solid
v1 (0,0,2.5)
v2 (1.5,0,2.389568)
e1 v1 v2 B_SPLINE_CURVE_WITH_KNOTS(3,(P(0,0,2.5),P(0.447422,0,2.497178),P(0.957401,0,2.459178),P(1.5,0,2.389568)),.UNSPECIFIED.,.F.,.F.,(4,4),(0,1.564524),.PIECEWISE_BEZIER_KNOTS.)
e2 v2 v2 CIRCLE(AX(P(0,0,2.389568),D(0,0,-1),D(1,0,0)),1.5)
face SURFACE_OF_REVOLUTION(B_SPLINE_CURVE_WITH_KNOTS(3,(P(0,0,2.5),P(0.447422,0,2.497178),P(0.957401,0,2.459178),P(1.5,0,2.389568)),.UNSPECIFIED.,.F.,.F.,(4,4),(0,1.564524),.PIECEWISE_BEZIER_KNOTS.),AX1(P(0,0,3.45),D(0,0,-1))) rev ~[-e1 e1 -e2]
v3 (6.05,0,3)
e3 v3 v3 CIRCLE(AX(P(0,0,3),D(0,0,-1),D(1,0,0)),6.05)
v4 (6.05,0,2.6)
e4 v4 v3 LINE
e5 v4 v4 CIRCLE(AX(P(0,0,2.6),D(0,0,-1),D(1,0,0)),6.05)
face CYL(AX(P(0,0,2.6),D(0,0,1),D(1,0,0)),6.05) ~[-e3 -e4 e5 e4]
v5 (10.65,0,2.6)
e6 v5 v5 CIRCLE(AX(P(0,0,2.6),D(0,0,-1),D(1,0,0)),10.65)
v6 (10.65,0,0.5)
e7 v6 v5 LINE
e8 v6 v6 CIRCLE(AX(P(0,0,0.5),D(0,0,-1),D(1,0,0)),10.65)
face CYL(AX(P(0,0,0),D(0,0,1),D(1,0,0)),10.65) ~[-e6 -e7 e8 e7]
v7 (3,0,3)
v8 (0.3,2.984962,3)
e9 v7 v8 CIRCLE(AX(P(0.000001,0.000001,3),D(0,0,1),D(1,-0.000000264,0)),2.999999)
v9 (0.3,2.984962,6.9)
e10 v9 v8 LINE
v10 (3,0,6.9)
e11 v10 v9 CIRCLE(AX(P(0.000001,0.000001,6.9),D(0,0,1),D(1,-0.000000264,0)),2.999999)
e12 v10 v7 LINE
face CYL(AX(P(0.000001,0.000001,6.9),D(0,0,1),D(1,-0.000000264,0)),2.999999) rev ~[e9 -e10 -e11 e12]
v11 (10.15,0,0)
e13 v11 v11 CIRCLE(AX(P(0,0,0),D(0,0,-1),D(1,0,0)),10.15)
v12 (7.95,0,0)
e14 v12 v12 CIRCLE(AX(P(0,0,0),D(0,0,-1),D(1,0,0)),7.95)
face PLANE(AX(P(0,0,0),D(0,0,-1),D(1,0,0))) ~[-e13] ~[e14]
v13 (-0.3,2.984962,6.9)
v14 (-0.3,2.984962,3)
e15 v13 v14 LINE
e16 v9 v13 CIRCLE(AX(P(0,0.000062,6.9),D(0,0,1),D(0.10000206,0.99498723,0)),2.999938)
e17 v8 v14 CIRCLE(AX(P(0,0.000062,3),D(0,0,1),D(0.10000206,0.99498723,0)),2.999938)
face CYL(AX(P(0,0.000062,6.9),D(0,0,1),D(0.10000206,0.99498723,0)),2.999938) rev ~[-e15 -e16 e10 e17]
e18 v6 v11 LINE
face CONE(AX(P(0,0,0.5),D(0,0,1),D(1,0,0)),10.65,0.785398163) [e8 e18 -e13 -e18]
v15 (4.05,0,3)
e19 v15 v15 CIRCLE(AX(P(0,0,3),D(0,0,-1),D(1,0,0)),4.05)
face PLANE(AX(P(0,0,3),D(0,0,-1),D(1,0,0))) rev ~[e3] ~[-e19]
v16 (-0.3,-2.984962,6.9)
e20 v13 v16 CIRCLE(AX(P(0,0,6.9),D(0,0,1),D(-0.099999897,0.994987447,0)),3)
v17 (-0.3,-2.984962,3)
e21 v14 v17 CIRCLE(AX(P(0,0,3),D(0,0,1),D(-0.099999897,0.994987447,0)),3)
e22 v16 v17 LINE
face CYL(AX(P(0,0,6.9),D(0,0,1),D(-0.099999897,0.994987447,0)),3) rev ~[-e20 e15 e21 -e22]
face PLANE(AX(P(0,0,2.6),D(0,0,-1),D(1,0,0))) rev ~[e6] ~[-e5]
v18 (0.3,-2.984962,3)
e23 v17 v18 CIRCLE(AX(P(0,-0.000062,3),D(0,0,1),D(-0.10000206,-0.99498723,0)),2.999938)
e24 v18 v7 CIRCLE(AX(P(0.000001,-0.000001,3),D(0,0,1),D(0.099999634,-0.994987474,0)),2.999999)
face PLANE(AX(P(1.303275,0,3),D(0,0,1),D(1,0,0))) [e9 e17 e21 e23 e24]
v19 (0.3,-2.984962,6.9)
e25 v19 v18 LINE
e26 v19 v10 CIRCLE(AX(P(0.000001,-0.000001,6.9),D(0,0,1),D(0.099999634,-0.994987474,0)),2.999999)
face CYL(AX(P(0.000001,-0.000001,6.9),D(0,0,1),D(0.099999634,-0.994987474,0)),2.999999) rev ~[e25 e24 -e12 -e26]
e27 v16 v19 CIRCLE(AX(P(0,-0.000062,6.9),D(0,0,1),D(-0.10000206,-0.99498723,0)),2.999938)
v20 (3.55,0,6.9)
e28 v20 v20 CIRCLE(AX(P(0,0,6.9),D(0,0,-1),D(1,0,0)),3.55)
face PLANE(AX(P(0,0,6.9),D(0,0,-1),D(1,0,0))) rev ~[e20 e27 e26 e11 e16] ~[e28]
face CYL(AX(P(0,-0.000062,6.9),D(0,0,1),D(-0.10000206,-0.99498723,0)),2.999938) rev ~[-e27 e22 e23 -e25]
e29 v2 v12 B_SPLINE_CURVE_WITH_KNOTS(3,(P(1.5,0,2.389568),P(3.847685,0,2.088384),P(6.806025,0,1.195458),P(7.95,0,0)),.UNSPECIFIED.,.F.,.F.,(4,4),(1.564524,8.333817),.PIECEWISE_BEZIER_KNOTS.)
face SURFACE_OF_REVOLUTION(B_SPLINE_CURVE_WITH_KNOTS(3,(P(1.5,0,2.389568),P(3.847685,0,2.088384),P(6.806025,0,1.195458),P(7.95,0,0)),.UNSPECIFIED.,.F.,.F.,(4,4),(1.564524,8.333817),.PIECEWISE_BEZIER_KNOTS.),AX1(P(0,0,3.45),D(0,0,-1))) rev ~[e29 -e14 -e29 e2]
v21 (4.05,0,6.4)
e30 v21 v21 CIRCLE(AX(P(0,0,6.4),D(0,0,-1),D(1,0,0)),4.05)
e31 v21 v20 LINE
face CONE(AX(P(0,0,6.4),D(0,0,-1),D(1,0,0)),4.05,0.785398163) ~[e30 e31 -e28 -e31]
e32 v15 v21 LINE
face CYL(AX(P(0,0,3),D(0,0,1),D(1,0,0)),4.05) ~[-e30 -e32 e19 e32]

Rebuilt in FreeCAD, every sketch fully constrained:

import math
import FreeCAD as App
import Part
import Sketcher

V = App.Vector


def edges_at(feature, points):
    """Names of the edges that pass closest to the given points."""
    edges = feature.Shape.Edges
    near = lambda p: min(range(len(edges)), key=lambda i: edges[i].distToShape(Part.Vertex(*p))[0])
    return sorted({f"Edge{near(p) + 1}" for p in points})

doc = App.newDocument("Part")
body = doc.addObject("PartDesign::Body", "Body")

# Sketch on XZ plane
sketch1 = body.newObject("Sketcher::SketchObject", "Sketch")
sketch1.AttachmentSupport = (doc.getObject("XZ_Plane"), [""])
sketch1.MapMode = "FlatFace"
sketch1.addGeometry([
    Part.BSplineCurve([V(1.5, 2.389568, 0), V(3.847685, 2.088384, 0), V(6.806025, 1.195458, 0), V(7.95, 0, 0)], [4, 4], [1.564524, 8.333817], False, 3, [1, 1, 1, 1], False),  # 0
    Part.LineSegment(V(7.95, 0, 0), V(10.65, 0, 0)),  # 1
    Part.LineSegment(V(10.65, 0, 0), V(10.65, 2.6, 0)),  # 2
    Part.LineSegment(V(10.65, 2.6, 0), V(6.05, 2.6, 0)),  # 3
    Part.LineSegment(V(6.05, 2.6, 0), V(6.05, 3, 0)),  # 4
    Part.LineSegment(V(6.05, 3, 0), V(4.05, 3, 0)),  # 5
    Part.LineSegment(V(4.05, 3, 0), V(4.05, 6.9, 0)),  # 6
    Part.LineSegment(V(4.05, 6.9, 0), V(0, 6.9, 0)),  # 7
    Part.LineSegment(V(0, 6.9, 0), V(0, 2.5, 0)),  # 8
    Part.BSplineCurve([V(0, 2.5, 0), V(0.447422, 2.497178, 0), V(0.957401, 2.459178, 0), V(1.5, 2.389568, 0)], [4, 4], [0, 1.564524], False, 3, [1, 1, 1, 1], False),  # 9
], False)
sketch1.addConstraint([
    Sketcher.Constraint("Block", 0),
    Sketcher.Constraint("Block", 9),
    Sketcher.Constraint("Coincident", 0, 2, 1, 1),
    Sketcher.Constraint("Coincident", 1, 2, 2, 1),
    Sketcher.Constraint("Coincident", 2, 2, 3, 1),
    Sketcher.Constraint("Coincident", 3, 2, 4, 1),
    Sketcher.Constraint("Coincident", 4, 2, 5, 1),
    Sketcher.Constraint("Coincident", 5, 2, 6, 1),
    Sketcher.Constraint("Coincident", 6, 2, 7, 1),
    Sketcher.Constraint("Coincident", 7, 2, 8, 1),
    Sketcher.Constraint("Coincident", 8, 2, 9, 1),
    Sketcher.Constraint("Horizontal", 1),
    Sketcher.Constraint("Vertical", 2),
    Sketcher.Constraint("Horizontal", 3),
    Sketcher.Constraint("Vertical", 4),
    Sketcher.Constraint("Horizontal", 5),
    Sketcher.Constraint("Vertical", 6),
    Sketcher.Constraint("Horizontal", 7),
    Sketcher.Constraint("Vertical", 8),
    Sketcher.Constraint("DistanceX", 5, 2, 5, 1, 2.0),
    Sketcher.Constraint("DistanceX", 1, 1, 1, 2, 2.7),
    Sketcher.Constraint("DistanceX", 3, 2, 3, 1, 4.6),
    Sketcher.Constraint("DistanceY", 2, 1, 2, 2, 2.6),
    Sketcher.Constraint("DistanceY", 4, 1, 4, 2, 0.4),
    Sketcher.Constraint("DistanceY", 6, 1, 6, 2, 3.9),
])
revolution = body.newObject("PartDesign::Revolution", "Revolution")
revolution.Profile = sketch1
revolution.ReferenceAxis = (sketch1, ["V_Axis"])
revolution.Angle = 360
doc.recompute()

chamfer = body.newObject("PartDesign::Chamfer", "Chamfer")
chamfer.Base = (revolution, edges_at(revolution, [(-4.05, 0, 6.9)]))
chamfer.Size = 0.5
doc.recompute()

chamfer2 = body.newObject("PartDesign::Chamfer", "Chamfer001")
chamfer2.Base = (chamfer, edges_at(chamfer, [(-10.65, 0, 0)]))
chamfer2.Size = 0.5

# Sketch on XY plane
sketch2 = body.newObject("Sketcher::SketchObject", "Sketch001")
sketch2.AttachmentSupport = (doc.getObject("XY_Plane"), [""])
sketch2.MapMode = "FlatFace"
sketch2.AttachmentOffset = App.Placement(V(0, 0, 6.9), App.Rotation())
sketch2.addGeometry([
    Part.ArcOfCircle(Part.Circle(V(0.000001, -0.000001, 0), V(0, 0, 1), 2.999999), math.radians(-84.260851), math.radians(0.000015)),  # 0
    Part.ArcOfCircle(Part.Circle(V(0.000001, 0.000001, 0), V(0, 0, 1), 2.999999), math.radians(-0.000015), math.radians(84.260851)),  # 1
    Part.ArcOfCircle(Part.Circle(V(0, 0.000062, 0), V(0, 0, 1), 2.999938), math.radians(84.260711), math.radians(95.739289)),  # 2
    Part.ArcOfCircle(Part.Circle(V(0, 0, 0), V(0, 0, 1), 3), math.radians(95.739165), math.radians(264.260835)),  # 3
    Part.ArcOfCircle(Part.Circle(V(0, -0.000062, 0), V(0, 0, 1), 2.999938), math.radians(-95.739289), math.radians(-84.260711)),  # 4
], False)
sketch2.addConstraint([
    Sketcher.Constraint("Tangent", 0, 2, 1, 1),
    Sketcher.Constraint("Coincident", 1, 2, 2, 1),
    Sketcher.Constraint("Coincident", 2, 2, 3, 1),
    Sketcher.Constraint("Coincident", 3, 2, 4, 1),
    Sketcher.Constraint("Coincident", 4, 2, 0, 1),
    Sketcher.Constraint("Coincident", 0, 3, -1, 1),
    Sketcher.Constraint("Coincident", 3, 3, -1, 1),
    Sketcher.Constraint("Equal", 0, 1),
    Sketcher.Constraint("Equal", 1, 3),
    Sketcher.Constraint("Equal", 2, 4),
    Sketcher.Constraint("PointOnObject", 0, 2, -1),
    Sketcher.Constraint("Horizontal", 1, 2, 2, 2),
    Sketcher.Constraint("Horizontal", 3, 2, 4, 2),
    Sketcher.Constraint("Vertical", 2, 2, 3, 2),
    Sketcher.Constraint("Radius", 0, 2.999999),
    Sketcher.Constraint("DistanceX", -1, 1, 1, 2, 0.3),
    Sketcher.Constraint("Radius", 2, 2.999938),
])
pocket1 = body.newObject("PartDesign::Pocket", "Pocket")
pocket1.Profile = sketch2
pocket1.Length = 3.9

doc.recompute()
